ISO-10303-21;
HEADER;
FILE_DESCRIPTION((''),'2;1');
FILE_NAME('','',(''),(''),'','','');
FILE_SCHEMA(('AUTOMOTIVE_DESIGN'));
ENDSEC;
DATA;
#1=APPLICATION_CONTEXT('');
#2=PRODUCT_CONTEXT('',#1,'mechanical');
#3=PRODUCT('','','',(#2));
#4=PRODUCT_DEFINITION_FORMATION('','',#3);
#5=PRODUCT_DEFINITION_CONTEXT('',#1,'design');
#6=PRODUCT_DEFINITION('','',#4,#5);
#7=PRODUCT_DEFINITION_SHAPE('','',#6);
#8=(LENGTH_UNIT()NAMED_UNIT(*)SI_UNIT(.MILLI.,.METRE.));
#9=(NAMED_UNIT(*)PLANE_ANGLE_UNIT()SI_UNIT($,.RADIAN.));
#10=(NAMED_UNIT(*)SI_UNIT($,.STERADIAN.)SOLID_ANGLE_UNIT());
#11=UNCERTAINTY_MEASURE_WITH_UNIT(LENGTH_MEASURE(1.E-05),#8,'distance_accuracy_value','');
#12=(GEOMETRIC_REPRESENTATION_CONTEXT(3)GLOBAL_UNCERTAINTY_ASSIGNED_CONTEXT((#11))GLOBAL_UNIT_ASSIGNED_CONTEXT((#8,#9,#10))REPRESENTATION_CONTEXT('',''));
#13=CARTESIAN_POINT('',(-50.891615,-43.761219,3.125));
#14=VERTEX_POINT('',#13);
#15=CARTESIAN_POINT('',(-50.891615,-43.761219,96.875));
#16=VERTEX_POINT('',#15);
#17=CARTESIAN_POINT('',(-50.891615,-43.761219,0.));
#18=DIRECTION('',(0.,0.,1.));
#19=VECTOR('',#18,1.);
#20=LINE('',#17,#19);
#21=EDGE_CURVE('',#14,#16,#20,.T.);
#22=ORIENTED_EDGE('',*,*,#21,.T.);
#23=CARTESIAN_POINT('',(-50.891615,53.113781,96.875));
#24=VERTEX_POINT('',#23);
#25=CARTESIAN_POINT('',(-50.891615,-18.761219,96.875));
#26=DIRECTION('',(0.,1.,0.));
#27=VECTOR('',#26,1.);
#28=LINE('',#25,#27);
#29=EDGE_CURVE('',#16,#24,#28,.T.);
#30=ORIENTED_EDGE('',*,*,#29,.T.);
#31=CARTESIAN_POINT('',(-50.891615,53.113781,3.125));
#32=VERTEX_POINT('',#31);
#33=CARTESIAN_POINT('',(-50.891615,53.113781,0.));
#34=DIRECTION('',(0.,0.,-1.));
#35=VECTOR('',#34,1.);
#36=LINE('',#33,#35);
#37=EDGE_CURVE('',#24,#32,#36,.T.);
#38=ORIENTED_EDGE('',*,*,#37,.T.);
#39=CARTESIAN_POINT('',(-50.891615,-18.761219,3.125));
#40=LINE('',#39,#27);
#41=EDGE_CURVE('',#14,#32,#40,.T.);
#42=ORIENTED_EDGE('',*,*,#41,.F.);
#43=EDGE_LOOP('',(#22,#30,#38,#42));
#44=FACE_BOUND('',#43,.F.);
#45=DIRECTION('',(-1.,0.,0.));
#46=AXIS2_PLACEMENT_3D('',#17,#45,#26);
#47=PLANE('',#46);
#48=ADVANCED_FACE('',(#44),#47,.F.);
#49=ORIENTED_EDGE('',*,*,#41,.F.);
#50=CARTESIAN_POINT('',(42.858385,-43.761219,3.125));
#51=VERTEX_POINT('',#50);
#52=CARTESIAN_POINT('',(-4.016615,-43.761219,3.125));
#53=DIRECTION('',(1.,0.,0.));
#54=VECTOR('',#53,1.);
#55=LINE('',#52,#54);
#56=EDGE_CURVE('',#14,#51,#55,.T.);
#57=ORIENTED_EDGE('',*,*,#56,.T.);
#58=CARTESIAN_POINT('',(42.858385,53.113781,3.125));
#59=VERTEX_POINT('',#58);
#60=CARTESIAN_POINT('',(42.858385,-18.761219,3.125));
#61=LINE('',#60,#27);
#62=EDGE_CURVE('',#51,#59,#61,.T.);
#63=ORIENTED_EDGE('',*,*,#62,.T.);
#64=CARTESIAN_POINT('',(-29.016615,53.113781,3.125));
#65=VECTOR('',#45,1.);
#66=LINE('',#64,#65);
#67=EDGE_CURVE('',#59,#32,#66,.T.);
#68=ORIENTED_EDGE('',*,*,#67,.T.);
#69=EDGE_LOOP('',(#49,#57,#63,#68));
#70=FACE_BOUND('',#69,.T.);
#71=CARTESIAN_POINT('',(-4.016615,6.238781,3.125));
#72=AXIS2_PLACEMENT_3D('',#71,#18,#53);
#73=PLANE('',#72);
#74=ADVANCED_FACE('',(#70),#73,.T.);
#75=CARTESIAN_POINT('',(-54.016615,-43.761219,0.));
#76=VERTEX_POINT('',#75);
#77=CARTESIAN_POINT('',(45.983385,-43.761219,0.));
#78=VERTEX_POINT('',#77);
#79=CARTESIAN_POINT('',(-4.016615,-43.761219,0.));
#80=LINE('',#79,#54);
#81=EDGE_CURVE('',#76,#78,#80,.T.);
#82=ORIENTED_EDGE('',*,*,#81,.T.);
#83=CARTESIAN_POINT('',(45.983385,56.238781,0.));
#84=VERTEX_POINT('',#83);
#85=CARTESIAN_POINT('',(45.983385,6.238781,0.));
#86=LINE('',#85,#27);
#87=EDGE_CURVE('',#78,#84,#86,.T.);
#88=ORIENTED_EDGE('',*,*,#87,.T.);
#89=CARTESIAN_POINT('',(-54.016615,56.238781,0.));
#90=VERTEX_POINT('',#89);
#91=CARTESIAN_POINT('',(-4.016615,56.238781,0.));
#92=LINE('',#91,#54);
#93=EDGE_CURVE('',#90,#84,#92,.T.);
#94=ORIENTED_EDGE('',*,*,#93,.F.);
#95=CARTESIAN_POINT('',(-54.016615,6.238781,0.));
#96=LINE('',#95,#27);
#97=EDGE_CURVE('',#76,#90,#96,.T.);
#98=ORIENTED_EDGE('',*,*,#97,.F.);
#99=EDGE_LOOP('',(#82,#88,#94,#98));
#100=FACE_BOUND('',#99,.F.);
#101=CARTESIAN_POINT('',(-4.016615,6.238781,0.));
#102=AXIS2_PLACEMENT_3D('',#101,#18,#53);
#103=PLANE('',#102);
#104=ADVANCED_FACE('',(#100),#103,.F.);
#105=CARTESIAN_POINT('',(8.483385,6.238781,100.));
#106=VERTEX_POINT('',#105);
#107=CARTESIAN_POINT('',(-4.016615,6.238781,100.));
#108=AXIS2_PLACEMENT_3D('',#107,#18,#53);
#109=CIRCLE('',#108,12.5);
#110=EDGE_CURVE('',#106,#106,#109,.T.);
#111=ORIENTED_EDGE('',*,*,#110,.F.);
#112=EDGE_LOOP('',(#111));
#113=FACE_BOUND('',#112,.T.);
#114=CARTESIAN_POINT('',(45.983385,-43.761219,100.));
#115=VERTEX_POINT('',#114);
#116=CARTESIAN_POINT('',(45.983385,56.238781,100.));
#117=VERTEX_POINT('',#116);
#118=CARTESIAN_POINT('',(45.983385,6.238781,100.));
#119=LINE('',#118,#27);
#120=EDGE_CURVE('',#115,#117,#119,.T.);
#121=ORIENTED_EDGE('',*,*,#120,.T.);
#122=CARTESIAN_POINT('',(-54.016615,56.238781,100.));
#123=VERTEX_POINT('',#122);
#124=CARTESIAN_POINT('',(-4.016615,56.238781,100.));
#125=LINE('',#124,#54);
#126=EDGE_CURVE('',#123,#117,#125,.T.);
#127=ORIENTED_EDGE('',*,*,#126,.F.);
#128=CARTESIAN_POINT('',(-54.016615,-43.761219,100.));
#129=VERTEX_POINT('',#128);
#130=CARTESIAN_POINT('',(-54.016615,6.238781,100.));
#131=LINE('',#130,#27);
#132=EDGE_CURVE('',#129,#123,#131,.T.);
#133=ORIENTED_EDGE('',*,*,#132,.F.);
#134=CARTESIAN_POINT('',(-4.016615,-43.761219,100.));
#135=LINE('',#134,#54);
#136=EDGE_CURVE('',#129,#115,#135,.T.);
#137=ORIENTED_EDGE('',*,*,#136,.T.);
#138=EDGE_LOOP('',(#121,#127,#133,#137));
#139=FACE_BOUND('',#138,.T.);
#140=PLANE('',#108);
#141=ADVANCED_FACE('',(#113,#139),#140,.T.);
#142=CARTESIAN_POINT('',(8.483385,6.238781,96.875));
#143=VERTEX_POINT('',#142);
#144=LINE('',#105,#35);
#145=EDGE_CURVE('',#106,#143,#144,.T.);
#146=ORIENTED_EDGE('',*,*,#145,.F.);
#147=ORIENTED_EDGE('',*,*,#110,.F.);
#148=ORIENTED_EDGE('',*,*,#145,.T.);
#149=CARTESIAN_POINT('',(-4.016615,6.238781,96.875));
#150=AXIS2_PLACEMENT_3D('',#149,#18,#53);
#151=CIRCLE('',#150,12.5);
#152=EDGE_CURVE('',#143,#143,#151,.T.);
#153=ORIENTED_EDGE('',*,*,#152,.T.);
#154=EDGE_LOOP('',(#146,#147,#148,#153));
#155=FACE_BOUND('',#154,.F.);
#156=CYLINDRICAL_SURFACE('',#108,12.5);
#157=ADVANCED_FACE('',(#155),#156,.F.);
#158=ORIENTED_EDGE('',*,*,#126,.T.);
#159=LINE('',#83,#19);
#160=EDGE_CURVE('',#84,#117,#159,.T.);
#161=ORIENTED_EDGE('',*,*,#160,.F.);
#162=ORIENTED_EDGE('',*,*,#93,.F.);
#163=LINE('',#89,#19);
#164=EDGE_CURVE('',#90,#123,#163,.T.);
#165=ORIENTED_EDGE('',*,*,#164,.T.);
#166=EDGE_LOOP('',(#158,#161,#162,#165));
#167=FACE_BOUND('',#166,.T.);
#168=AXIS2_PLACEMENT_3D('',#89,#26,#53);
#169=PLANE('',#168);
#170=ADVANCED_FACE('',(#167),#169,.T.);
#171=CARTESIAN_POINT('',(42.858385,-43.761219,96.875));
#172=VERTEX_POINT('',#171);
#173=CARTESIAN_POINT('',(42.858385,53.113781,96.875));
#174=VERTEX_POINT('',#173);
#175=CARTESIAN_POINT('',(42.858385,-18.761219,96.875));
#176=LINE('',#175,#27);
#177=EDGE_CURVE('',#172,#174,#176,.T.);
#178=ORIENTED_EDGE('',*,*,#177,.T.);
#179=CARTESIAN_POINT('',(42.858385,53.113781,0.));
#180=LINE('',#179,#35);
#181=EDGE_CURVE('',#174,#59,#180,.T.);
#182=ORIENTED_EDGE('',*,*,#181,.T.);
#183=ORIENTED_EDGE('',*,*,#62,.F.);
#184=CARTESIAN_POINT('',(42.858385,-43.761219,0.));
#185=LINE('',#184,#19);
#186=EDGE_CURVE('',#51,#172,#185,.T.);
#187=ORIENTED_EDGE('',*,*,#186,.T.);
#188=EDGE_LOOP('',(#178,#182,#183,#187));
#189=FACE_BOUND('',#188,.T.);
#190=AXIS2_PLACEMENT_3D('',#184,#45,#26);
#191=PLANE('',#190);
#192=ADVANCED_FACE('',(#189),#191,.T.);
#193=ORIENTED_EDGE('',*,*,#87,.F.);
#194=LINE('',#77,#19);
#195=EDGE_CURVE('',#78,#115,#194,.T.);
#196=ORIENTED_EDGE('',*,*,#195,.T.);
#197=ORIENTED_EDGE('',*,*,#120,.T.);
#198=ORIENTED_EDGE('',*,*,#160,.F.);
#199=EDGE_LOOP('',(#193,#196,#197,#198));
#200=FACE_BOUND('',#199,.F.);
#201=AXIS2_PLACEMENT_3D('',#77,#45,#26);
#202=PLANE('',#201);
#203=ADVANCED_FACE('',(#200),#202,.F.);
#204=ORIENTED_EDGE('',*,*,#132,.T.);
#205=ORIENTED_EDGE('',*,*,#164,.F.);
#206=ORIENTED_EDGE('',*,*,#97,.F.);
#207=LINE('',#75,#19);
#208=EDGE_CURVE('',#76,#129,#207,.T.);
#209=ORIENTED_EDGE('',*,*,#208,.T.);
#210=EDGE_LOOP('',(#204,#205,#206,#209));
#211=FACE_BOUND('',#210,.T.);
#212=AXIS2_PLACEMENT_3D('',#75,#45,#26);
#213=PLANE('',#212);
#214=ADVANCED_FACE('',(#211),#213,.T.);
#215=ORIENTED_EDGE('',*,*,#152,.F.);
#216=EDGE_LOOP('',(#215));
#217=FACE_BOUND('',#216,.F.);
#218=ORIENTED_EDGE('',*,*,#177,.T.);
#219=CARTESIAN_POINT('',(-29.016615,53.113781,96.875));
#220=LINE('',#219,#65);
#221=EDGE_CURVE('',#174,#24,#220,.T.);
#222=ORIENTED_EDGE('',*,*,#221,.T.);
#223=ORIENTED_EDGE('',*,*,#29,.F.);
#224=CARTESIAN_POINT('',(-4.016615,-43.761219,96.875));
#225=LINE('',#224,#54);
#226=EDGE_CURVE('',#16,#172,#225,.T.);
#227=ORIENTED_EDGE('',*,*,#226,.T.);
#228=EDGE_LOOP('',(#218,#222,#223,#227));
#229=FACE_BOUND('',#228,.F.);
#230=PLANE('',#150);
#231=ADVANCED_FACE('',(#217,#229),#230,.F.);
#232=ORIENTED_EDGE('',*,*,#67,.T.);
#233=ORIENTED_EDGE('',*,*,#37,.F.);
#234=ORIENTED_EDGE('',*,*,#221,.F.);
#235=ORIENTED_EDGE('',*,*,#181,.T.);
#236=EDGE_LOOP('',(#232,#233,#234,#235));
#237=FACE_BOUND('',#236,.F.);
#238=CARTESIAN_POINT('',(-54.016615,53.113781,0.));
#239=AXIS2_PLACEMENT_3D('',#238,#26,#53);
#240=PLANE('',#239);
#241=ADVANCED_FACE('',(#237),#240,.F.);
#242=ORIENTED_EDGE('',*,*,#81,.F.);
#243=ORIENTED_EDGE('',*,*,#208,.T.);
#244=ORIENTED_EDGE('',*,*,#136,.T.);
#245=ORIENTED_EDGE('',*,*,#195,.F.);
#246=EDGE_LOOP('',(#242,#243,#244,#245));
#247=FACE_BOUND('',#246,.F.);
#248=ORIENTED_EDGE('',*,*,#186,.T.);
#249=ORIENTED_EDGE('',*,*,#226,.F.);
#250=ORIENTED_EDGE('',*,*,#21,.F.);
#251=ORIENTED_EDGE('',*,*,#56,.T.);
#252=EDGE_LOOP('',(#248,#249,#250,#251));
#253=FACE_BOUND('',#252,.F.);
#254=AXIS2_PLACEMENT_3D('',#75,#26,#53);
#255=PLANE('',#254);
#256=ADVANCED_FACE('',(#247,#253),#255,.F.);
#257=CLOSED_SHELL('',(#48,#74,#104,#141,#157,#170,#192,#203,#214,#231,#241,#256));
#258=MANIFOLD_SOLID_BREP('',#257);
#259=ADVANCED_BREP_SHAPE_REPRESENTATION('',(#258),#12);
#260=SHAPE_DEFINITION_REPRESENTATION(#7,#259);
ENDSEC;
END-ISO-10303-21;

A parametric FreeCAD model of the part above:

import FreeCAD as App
import Part
import Sketcher
from FreeCAD import Vector
Q = App.Units.Quantity


def faces_at(feature, points):
    """Names of the faces that lie closest to the given points."""
    faces = feature.Shape.Faces
    near = lambda p: min(range(len(faces)), key=lambda i: faces[i].distToShape(Part.Vertex(*p))[0])
    return sorted({f"Face{near(p) + 1}" for p in points})

doc = App.newDocument("Part")
params = doc.addObject("Spreadsheet::Sheet", "Params")
for row, (alias, value) in enumerate([
    ("sketch1_width", "100 mm"),
    ("pad1_length", "100 mm"),
    ("thickness_wall", "3.125 mm"),
    ("sketch2_diameter", "25 mm"),
    ("pocket1_length", "3.125 mm"),
], start=1):
    params.set(f"A{row}", alias)
    params.set(f"B{row}", "=" + value)
    params.setAlias(f"B{row}", alias)

body = doc.addObject("PartDesign::Body", "Body")

sketch1 = body.newObject("Sketcher::SketchObject", "Sketch")
sketch1.AttachmentSupport = (doc.getObject("XY_Plane"), [""])
sketch1.MapMode = "FlatFace"
sketch1.addGeometry([
    Part.LineSegment(Vector(-54.016615, 56.238781, 0), Vector(-54.016615, -43.761219, 0)),
    Part.LineSegment(Vector(-54.016615, -43.761219, 0), Vector(45.983385, -43.761219, 0)),
    Part.LineSegment(Vector(45.983385, -43.761219, 0), Vector(45.983385, 56.238781, 0)),
    Part.LineSegment(Vector(45.983385, 56.238781, 0), Vector(-54.016615, 56.238781, 0)),
], False)
sketch1.addConstraint([
    Sketcher.Constraint("Coincident", 0, 2, 1, 1),
    Sketcher.Constraint("Coincident", 1, 2, 2, 1),
    Sketcher.Constraint("Coincident", 2, 2, 3, 1),
    Sketcher.Constraint("Coincident", 3, 2, 0, 1),
    Sketcher.Constraint("Vertical", 0),
    Sketcher.Constraint("Horizontal", 1),
    Sketcher.Constraint("Vertical", 2),
    Sketcher.Constraint("Horizontal", 3),
    Sketcher.Constraint("Equal", 3, 0),
    Sketcher.Constraint("DistanceX", 1, 1, 1, 2, Q("100 mm")),
    Sketcher.Constraint("DistanceY", 0, 2, -1, 1, Q("43.761219 mm")),
    Sketcher.Constraint("DistanceX", 0, 2, -1, 1, Q("54.016615 mm")),
])
sketch1.setExpression("Constraints[9]", "Params.sketch1_width")
pad1 = body.newObject("PartDesign::Pad", "Pad")
pad1.Profile = sketch1
pad1.setExpression("Length", "Params.pad1_length")
doc.recompute()

thickness = body.newObject("PartDesign::Thickness", "Thickness")
thickness.Base = (pad1, faces_at(pad1, [(-4.017, -43.761, 50)]))
thickness.setExpression("Value", "Params.thickness_wall")
thickness.Reversed = True
thickness.Join = "Arc"

sketch2 = body.newObject("Sketcher::SketchObject", "Sketch001")
sketch2.AttachmentSupport = (doc.getObject("XY_Plane"), [""])
sketch2.MapMode = "FlatFace"
sketch2.AttachmentOffset = App.Placement(Vector(0, 0, 100), App.Rotation())
sketch2.addGeometry(Part.Circle(Vector(-4.016615, 6.238781, 0), Vector(0, 0, 1), 12.5), False)
sketch2.addConstraint([
    Sketcher.Constraint("Diameter", 0, Q("25 mm")),
    Sketcher.Constraint("DistanceY", -1, 1, 0, 3, Q("6.238781 mm")),
    Sketcher.Constraint("DistanceX", 0, 3, -1, 1, Q("4.016615 mm")),
])
sketch2.setExpression("Constraints[0]", "Params.sketch2_diameter")
pocket1 = body.newObject("PartDesign::Pocket", "Pocket")
pocket1.Profile = sketch2
pocket1.setExpression("Length", "Params.pocket1_length")

doc.recompute()
